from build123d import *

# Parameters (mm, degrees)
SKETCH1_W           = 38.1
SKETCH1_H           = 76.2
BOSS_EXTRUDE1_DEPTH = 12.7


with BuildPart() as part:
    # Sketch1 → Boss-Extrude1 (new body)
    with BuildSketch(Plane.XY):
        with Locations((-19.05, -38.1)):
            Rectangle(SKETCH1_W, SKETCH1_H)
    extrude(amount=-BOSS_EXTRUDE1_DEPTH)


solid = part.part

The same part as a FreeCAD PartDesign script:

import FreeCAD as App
import Part
import Sketcher
from FreeCAD import Vector
Q = App.Units.Quantity


def add_polygon(sketch, points):
    """Adds a closed chain of lines whose ends are joined by coincident constraints."""
    first, n = sketch.GeometryCount, len(points)
    for a, b in zip(points, points[1:] + points[:1]):
        sketch.addGeometry(Part.LineSegment(App.Vector(*a, 0), App.Vector(*b, 0)), False)
    for i in range(n):
        sketch.addConstraint(Sketcher.Constraint("Coincident", first + i, 2, first + (i + 1) % n, 1))

doc = App.newDocument("Part")
body = doc.addObject("PartDesign::Body", "Body")

# Sketch on XY plane
sketch1 = body.newObject("Sketcher::SketchObject", "Sketch")
sketch1.AttachmentSupport = (doc.getObject("XY_Plane"), [""])
sketch1.MapMode = "FlatFace"
add_polygon(sketch1, [(-38, 0), (-38, -76), (0, -76), (0, 0)])  # lines 0-3
sketch1.addConstraint([
    Sketcher.Constraint("Vertical", 0),
    Sketcher.Constraint("Horizontal", 1),
    Sketcher.Constraint("Vertical", 2),
    Sketcher.Constraint("Horizontal", 3),
    Sketcher.Constraint("Coincident", 2, 2, -1, 1),
    Sketcher.Constraint("DistanceY", 0, 2, 0, 1, Q("3 in")),
    Sketcher.Constraint("DistanceX", 1, 1, 1, 2, Q("1.5 in")),
])
pad1 = body.newObject("PartDesign::Pad", "Pad")
pad1.Profile = sketch1
pad1.Length = Q("0.5 in")
pad1.Reversed = True

doc.recompute()
